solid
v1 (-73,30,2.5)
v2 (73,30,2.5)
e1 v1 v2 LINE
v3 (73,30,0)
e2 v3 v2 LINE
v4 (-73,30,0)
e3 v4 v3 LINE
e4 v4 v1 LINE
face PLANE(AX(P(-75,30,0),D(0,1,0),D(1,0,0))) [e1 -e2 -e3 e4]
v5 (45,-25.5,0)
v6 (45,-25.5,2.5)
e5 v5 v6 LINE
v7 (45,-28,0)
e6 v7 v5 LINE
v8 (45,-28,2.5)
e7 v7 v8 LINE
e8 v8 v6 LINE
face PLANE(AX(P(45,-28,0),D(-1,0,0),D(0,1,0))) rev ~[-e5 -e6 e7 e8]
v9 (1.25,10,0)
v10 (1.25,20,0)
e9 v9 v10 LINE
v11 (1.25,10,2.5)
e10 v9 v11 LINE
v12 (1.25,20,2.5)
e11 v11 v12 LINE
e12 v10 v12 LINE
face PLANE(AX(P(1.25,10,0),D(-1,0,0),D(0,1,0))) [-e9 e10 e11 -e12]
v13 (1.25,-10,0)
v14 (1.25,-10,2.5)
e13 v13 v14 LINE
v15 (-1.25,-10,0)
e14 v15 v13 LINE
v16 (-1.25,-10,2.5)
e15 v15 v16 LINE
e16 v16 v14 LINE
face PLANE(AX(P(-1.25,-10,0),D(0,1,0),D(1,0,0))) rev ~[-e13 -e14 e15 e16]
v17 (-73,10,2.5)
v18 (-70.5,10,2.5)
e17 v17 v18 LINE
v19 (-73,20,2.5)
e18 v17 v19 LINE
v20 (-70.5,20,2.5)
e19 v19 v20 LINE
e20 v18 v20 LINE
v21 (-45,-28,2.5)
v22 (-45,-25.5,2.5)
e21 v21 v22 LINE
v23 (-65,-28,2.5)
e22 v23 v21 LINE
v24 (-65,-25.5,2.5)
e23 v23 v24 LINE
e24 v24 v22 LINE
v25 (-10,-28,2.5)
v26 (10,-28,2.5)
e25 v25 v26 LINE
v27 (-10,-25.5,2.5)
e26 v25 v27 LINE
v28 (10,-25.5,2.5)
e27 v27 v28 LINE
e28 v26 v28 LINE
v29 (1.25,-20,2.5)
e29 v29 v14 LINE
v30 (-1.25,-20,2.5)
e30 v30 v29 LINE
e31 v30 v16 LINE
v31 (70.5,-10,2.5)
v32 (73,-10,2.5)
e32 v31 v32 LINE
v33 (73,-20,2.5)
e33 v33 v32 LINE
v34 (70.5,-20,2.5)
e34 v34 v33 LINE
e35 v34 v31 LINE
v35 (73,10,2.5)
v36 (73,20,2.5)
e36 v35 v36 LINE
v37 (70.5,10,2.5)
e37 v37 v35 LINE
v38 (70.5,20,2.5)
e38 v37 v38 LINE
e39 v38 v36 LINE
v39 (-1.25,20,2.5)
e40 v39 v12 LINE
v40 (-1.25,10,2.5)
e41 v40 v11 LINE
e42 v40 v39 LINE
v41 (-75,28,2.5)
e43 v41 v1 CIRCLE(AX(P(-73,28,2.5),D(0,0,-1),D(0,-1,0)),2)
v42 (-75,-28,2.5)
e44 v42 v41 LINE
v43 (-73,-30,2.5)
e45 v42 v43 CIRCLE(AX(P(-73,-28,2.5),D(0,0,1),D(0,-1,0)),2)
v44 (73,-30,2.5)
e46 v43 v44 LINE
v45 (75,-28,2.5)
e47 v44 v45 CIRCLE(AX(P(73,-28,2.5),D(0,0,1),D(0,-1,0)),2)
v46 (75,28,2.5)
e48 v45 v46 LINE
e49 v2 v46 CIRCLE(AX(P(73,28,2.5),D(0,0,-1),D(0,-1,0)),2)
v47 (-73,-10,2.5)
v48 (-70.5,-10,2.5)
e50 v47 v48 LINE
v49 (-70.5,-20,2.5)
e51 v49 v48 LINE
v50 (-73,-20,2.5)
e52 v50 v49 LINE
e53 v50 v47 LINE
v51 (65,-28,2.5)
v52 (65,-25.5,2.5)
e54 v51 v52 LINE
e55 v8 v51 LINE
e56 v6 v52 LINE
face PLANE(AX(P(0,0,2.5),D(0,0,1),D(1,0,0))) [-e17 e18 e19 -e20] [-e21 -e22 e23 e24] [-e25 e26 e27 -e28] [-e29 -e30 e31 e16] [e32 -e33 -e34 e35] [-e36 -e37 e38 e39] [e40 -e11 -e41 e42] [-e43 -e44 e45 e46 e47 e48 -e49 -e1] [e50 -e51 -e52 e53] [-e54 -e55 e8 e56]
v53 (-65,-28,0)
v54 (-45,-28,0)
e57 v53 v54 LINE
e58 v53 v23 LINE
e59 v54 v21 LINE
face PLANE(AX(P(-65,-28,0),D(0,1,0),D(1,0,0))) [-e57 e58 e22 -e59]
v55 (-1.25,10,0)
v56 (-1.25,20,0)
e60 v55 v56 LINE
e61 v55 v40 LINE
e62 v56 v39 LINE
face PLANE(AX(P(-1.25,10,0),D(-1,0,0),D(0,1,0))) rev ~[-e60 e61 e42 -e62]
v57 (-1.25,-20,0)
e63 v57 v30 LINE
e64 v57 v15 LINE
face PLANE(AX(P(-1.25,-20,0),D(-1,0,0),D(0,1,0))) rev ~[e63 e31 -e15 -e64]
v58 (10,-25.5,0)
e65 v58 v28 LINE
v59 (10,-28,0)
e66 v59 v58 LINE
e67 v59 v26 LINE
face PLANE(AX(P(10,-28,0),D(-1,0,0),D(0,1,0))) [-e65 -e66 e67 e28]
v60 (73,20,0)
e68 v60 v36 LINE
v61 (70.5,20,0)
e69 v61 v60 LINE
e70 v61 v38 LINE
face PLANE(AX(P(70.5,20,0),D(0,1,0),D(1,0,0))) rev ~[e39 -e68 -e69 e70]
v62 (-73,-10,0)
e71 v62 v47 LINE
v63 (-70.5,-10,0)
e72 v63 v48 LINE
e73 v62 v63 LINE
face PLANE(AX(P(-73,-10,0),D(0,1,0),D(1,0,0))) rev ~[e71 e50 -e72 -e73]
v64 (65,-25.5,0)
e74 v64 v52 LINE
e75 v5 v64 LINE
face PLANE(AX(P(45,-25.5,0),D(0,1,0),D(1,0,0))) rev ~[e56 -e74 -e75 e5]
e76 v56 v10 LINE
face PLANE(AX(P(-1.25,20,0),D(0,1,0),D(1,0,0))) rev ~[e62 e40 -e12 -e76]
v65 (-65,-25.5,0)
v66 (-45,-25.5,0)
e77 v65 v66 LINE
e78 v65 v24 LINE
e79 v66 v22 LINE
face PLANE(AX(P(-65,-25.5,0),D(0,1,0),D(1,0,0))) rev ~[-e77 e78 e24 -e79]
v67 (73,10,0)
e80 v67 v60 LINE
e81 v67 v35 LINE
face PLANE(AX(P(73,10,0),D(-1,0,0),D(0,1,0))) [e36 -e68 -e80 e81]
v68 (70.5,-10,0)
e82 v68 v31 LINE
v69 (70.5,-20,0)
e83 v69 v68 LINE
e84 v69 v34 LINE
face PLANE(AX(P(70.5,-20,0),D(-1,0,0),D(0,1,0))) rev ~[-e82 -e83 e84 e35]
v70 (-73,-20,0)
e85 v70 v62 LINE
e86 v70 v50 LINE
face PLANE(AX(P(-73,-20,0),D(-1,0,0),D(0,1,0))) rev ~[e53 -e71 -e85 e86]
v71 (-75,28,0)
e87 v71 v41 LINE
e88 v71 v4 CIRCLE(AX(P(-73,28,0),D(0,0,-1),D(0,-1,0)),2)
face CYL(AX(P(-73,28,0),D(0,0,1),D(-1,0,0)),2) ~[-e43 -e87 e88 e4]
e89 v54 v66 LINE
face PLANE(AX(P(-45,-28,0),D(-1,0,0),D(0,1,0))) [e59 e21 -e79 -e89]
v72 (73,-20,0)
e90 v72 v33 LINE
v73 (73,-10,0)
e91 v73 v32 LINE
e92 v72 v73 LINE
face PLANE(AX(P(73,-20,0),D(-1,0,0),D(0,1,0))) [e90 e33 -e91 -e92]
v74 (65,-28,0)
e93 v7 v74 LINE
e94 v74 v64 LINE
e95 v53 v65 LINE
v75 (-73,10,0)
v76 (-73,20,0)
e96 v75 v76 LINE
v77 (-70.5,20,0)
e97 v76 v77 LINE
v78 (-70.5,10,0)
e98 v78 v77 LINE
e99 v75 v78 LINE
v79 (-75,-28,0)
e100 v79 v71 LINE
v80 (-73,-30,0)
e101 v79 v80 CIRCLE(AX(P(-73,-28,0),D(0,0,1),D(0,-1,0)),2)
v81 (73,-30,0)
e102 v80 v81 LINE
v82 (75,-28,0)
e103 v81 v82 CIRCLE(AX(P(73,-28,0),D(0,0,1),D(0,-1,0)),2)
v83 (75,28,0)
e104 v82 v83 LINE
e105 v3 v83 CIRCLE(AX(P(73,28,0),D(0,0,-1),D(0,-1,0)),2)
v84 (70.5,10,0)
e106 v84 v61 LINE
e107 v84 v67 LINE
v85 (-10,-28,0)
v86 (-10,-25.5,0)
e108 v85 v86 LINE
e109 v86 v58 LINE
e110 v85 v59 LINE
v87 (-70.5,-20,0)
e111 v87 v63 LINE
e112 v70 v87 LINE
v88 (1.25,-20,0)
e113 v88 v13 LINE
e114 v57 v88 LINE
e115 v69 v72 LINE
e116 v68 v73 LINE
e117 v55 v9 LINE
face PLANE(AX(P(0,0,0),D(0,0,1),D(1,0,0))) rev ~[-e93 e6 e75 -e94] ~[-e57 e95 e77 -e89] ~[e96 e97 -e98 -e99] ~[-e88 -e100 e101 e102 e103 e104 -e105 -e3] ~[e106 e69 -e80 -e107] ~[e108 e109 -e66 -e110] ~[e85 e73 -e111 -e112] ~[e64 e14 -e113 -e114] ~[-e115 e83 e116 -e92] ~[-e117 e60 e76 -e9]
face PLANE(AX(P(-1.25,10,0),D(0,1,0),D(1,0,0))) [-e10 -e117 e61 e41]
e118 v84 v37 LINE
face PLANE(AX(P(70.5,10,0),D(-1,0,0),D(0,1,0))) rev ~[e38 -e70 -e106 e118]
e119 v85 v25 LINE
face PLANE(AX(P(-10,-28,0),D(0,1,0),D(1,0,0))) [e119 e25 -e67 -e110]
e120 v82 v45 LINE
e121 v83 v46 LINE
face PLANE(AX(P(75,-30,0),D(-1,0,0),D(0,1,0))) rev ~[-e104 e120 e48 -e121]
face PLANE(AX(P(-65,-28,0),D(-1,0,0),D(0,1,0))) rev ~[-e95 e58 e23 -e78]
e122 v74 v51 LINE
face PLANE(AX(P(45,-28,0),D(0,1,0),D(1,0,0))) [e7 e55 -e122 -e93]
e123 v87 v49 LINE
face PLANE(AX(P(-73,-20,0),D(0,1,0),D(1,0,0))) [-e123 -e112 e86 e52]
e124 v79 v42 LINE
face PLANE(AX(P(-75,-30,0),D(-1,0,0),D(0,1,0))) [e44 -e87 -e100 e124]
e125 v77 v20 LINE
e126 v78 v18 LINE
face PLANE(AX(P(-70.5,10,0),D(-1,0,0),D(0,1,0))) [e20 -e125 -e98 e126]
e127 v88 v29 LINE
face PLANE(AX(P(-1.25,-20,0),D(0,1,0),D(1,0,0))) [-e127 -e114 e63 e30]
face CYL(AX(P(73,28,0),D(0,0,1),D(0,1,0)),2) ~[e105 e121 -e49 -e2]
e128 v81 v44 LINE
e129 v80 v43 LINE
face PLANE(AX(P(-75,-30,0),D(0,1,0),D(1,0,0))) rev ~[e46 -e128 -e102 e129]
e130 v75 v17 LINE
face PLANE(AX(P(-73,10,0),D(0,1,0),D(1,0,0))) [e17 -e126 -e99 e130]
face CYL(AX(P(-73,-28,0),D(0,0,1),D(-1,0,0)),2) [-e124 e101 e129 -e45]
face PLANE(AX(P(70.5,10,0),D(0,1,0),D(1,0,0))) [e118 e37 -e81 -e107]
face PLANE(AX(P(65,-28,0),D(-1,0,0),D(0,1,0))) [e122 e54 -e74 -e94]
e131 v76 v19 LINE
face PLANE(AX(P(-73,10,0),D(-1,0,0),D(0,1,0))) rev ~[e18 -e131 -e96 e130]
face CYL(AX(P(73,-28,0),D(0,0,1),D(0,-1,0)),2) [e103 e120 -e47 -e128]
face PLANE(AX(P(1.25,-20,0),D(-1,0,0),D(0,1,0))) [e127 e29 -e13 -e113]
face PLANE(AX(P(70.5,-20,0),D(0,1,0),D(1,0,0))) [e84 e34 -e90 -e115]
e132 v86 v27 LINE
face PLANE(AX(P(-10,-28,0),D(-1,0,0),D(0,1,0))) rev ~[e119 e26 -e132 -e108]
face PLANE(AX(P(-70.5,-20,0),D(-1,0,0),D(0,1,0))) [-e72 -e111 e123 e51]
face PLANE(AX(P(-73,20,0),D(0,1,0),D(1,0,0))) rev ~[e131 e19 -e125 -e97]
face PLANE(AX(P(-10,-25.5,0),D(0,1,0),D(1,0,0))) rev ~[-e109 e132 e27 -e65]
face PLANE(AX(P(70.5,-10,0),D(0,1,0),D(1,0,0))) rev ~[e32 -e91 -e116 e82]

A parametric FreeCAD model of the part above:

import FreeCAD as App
import Part
import Sketcher

V = App.Vector


def edges_at(feature, points):
    """Names of the edges that pass closest to the given points."""
    edges = feature.Shape.Edges
    near = lambda p: min(range(len(edges)), key=lambda i: edges[i].distToShape(Part.Vertex(*p))[0])
    return sorted({f"Edge{near(p) + 1}" for p in points})

doc = App.newDocument("Part")
body = doc.addObject("PartDesign::Body", "Body")

# Sketch on XY plane
sketch1 = body.newObject("Sketcher::SketchObject", "Sketch")
sketch1.AttachmentSupport = (doc.getObject("XY_Plane"), [""])
sketch1.MapMode = "FlatFace"
sketch1.addGeometry(Part.LineSegment(V(-75, 30, 0), V(-75, -30, 0)), False)
sketch1.addGeometry(Part.LineSegment(V(-75, -30, 0), V(75, -30, 0)), False)
sketch1.addGeometry(Part.LineSegment(V(75, -30, 0), V(75, 30, 0)), False)
sketch1.addGeometry(Part.LineSegment(V(75, 30, 0), V(-75, 30, 0)), False)
sketch1.addGeometry(Part.LineSegment(V(-45, -28, 0), V(-65, -28, 0)), False)
sketch1.addGeometry(Part.LineSegment(V(-65, -28, 0), V(-65, -25.5, 0)), False)
sketch1.addGeometry(Part.LineSegment(V(-65, -25.5, 0), V(-45, -25.5, 0)), False)
sketch1.addGeometry(Part.LineSegment(V(-45, -25.5, 0), V(-45, -28, 0)), False)
sketch1.addGeometry(Part.LineSegment(V(-70.5, -20, 0), V(-73, -20, 0)), False)
sketch1.addGeometry(Part.LineSegment(V(-73, -20, 0), V(-73, -10, 0)), False)
sketch1.addGeometry(Part.LineSegment(V(-73, -10, 0), V(-70.5, -10, 0)), False)
sketch1.addGeometry(Part.LineSegment(V(-70.5, -10, 0), V(-70.5, -20, 0)), False)
sketch1.addGeometry(Part.LineSegment(V(10, -28, 0), V(-10, -28, 0)), False)
sketch1.addGeometry(Part.LineSegment(V(-10, -28, 0), V(-10, -25.5, 0)), False)
sketch1.addGeometry(Part.LineSegment(V(-10, -25.5, 0), V(10, -25.5, 0)), False)
sketch1.addGeometry(Part.LineSegment(V(10, -25.5, 0), V(10, -28, 0)), False)
sketch1.addGeometry(Part.LineSegment(V(65, -28, 0), V(45, -28, 0)), False)
sketch1.addGeometry(Part.LineSegment(V(45, -28, 0), V(45, -25.5, 0)), False)
sketch1.addGeometry(Part.LineSegment(V(45, -25.5, 0), V(65, -25.5, 0)), False)
sketch1.addGeometry(Part.LineSegment(V(65, -25.5, 0), V(65, -28, 0)), False)
sketch1.addGeometry(Part.LineSegment(V(1.2, -20, 0), V(-1.2, -20, 0)), False)
sketch1.addGeometry(Part.LineSegment(V(-1.2, -20, 0), V(-1.2, -10, 0)), False)
sketch1.addGeometry(Part.LineSegment(V(-1.2, -10, 0), V(1.2, -10, 0)), False)
sketch1.addGeometry(Part.LineSegment(V(1.2, -10, 0), V(1.2, -20, 0)), False)
sketch1.addGeometry(Part.LineSegment(V(73, -20, 0), V(70.5, -20, 0)), False)
sketch1.addGeometry(Part.LineSegment(V(70.5, -20, 0), V(70.5, -10, 0)), False)
sketch1.addGeometry(Part.LineSegment(V(70.5, -10, 0), V(73, -10, 0)), False)
sketch1.addGeometry(Part.LineSegment(V(73, -10, 0), V(73, -20, 0)), False)
sketch1.addGeometry(Part.LineSegment(V(-70.5, 10, 0), V(-73, 10, 0)), False)
sketch1.addGeometry(Part.LineSegment(V(-73, 10, 0), V(-73, 20, 0)), False)
sketch1.addGeometry(Part.LineSegment(V(-73, 20, 0), V(-70.5, 20, 0)), False)
sketch1.addGeometry(Part.LineSegment(V(-70.5, 20, 0), V(-70.5, 10, 0)), False)
sketch1.addGeometry(Part.LineSegment(V(1.2, 10, 0), V(-1.2, 10, 0)), False)
sketch1.addGeometry(Part.LineSegment(V(-1.2, 10, 0), V(-1.2, 20, 0)), False)
sketch1.addGeometry(Part.LineSegment(V(-1.2, 20, 0), V(1.2, 20, 0)), False)
sketch1.addGeometry(Part.LineSegment(V(1.2, 20, 0), V(1.2, 10, 0)), False)
sketch1.addGeometry(Part.LineSegment(V(73, 10, 0), V(70.5, 10, 0)), False)
sketch1.addGeometry(Part.LineSegment(V(70.5, 10, 0), V(70.5, 20, 0)), False)
sketch1.addGeometry(Part.LineSegment(V(70.5, 20, 0), V(73, 20, 0)), False)
sketch1.addGeometry(Part.LineSegment(V(73, 20, 0), V(73, 10, 0)), False)
sketch1.addConstraint(Sketcher.Constraint("Coincident", 0, 2, 1, 1))
sketch1.addConstraint(Sketcher.Constraint("Coincident", 1, 2, 2, 1))
sketch1.addConstraint(Sketcher.Constraint("Coincident", 2, 2, 3, 1))
sketch1.addConstraint(Sketcher.Constraint("Coincident", 3, 2, 0, 1))
sketch1.addConstraint(Sketcher.Constraint("Coincident", 4, 2, 5, 1))
sketch1.addConstraint(Sketcher.Constraint("Coincident", 5, 2, 6, 1))
sketch1.addConstraint(Sketcher.Constraint("Coincident", 6, 2, 7, 1))
sketch1.addConstraint(Sketcher.Constraint("Coincident", 7, 2, 4, 1))
sketch1.addConstraint(Sketcher.Constraint("Coincident", 8, 2, 9, 1))
sketch1.addConstraint(Sketcher.Constraint("Coincident", 9, 2, 10, 1))
sketch1.addConstraint(Sketcher.Constraint("Coincident", 10, 2, 11, 1))
sketch1.addConstraint(Sketcher.Constraint("Coincident", 11, 2, 8, 1))
sketch1.addConstraint(Sketcher.Constraint("Coincident", 12, 2, 13, 1))
sketch1.addConstraint(Sketcher.Constraint("Coincident", 13, 2, 14, 1))
sketch1.addConstraint(Sketcher.Constraint("Coincident", 14, 2, 15, 1))
sketch1.addConstraint(Sketcher.Constraint("Coincident", 15, 2, 12, 1))
sketch1.addConstraint(Sketcher.Constraint("Coincident", 16, 2, 17, 1))
sketch1.addConstraint(Sketcher.Constraint("Coincident", 17, 2, 18, 1))
sketch1.addConstraint(Sketcher.Constraint("Coincident", 18, 2, 19, 1))
sketch1.addConstraint(Sketcher.Constraint("Coincident", 19, 2, 16, 1))
sketch1.addConstraint(Sketcher.Constraint("Coincident", 20, 2, 21, 1))
sketch1.addConstraint(Sketcher.Constraint("Coincident", 21, 2, 22, 1))
sketch1.addConstraint(Sketcher.Constraint("Coincident", 22, 2, 23, 1))
sketch1.addConstraint(Sketcher.Constraint("Coincident", 23, 2, 20, 1))
sketch1.addConstraint(Sketcher.Constraint("Coincident", 24, 2, 25, 1))
sketch1.addConstraint(Sketcher.Constraint("Coincident", 25, 2, 26, 1))
sketch1.addConstraint(Sketcher.Constraint("Coincident", 26, 2, 27, 1))
sketch1.addConstraint(Sketcher.Constraint("Coincident", 27, 2, 24, 1))
sketch1.addConstraint(Sketcher.Constraint("Coincident", 28, 2, 29, 1))
sketch1.addConstraint(Sketcher.Constraint("Coincident", 29, 2, 30, 1))
sketch1.addConstraint(Sketcher.Constraint("Coincident", 30, 2, 31, 1))
sketch1.addConstraint(Sketcher.Constraint("Coincident", 31, 2, 28, 1))
sketch1.addConstraint(Sketcher.Constraint("Coincident", 32, 2, 33, 1))
sketch1.addConstraint(Sketcher.Constraint("Coincident", 33, 2, 34, 1))
sketch1.addConstraint(Sketcher.Constraint("Coincident", 34, 2, 35, 1))
sketch1.addConstraint(Sketcher.Constraint("Coincident", 35, 2, 32, 1))
sketch1.addConstraint(Sketcher.Constraint("Coincident", 36, 2, 37, 1))
sketch1.addConstraint(Sketcher.Constraint("Coincident", 37, 2, 38, 1))
sketch1.addConstraint(Sketcher.Constraint("Coincident", 38, 2, 39, 1))
sketch1.addConstraint(Sketcher.Constraint("Coincident", 39, 2, 36, 1))
sketch1.addConstraint(Sketcher.Constraint("Vertical", 0))
sketch1.addConstraint(Sketcher.Constraint("Horizontal", 1))
sketch1.addConstraint(Sketcher.Constraint("Vertical", 2))
sketch1.addConstraint(Sketcher.Constraint("Horizontal", 3))
sketch1.addConstraint(Sketcher.Constraint("Horizontal", 4))
sketch1.addConstraint(Sketcher.Constraint("Vertical", 5))
sketch1.addConstraint(Sketcher.Constraint("Horizontal", 6))
sketch1.addConstraint(Sketcher.Constraint("Vertical", 7))
sketch1.addConstraint(Sketcher.Constraint("Horizontal", 8))
sketch1.addConstraint(Sketcher.Constraint("Vertical", 9))
sketch1.addConstraint(Sketcher.Constraint("Horizontal", 10))
sketch1.addConstraint(Sketcher.Constraint("Vertical", 11))
sketch1.addConstraint(Sketcher.Constraint("Horizontal", 12))
sketch1.addConstraint(Sketcher.Constraint("Vertical", 13))
sketch1.addConstraint(Sketcher.Constraint("Horizontal", 14))
sketch1.addConstraint(Sketcher.Constraint("Vertical", 15))
sketch1.addConstraint(Sketcher.Constraint("Horizontal", 16))
sketch1.addConstraint(Sketcher.Constraint("Vertical", 17))
sketch1.addConstraint(Sketcher.Constraint("Horizontal", 18))
sketch1.addConstraint(Sketcher.Constraint("Vertical", 19))
sketch1.addConstraint(Sketcher.Constraint("Horizontal", 20))
sketch1.addConstraint(Sketcher.Constraint("Vertical", 21))
sketch1.addConstraint(Sketcher.Constraint("Horizontal", 22))
sketch1.addConstraint(Sketcher.Constraint("Vertical", 23))
sketch1.addConstraint(Sketcher.Constraint("Horizontal", 24))
sketch1.addConstraint(Sketcher.Constraint("Vertical", 25))
sketch1.addConstraint(Sketcher.Constraint("Horizontal", 26))
sketch1.addConstraint(Sketcher.Constraint("Vertical", 27))
sketch1.addConstraint(Sketcher.Constraint("Horizontal", 28))
sketch1.addConstraint(Sketcher.Constraint("Vertical", 29))
sketch1.addConstraint(Sketcher.Constraint("Horizontal", 30))
sketch1.addConstraint(Sketcher.Constraint("Vertical", 31))
sketch1.addConstraint(Sketcher.Constraint("Horizontal", 32))
sketch1.addConstraint(Sketcher.Constraint("Vertical", 33))
sketch1.addConstraint(Sketcher.Constraint("Horizontal", 34))
sketch1.addConstraint(Sketcher.Constraint("Vertical", 35))
sketch1.addConstraint(Sketcher.Constraint("Horizontal", 36))
sketch1.addConstraint(Sketcher.Constraint("Vertical", 37))
sketch1.addConstraint(Sketcher.Constraint("Horizontal", 38))
sketch1.addConstraint(Sketcher.Constraint("Vertical", 39))
sketch1.addConstraint(Sketcher.Constraint("Symmetric", 0, 2, 2, 2, -1, 1))
sketch1.addConstraint(Sketcher.Constraint("Symmetric", 26, 2, 28, 2, -1, 1))
sketch1.addConstraint(Sketcher.Constraint("Symmetric", 24, 2, 30, 2, -1, 1))
sketch1.addConstraint(Sketcher.Constraint("Symmetric", 22, 2, 32, 2, -1, 1))
sketch1.addConstraint(Sketcher.Constraint("Symmetric", 20, 2, 34, 2, -1, 1))
sketch1.addConstraint(Sketcher.Constraint("Symmetric", 10, 2, 36, 2, -1, 1))
sketch1.addConstraint(Sketcher.Constraint("Symmetric", 8, 2, 38, 2, -1, 1))
sketch1.addConstraint(Sketcher.Constraint("Symmetric", 7, 2, 16, 2, -2))
sketch1.addConstraint(Sketcher.Constraint("Symmetric", 5, 2, 18, 2, -2))
sketch1.addConstraint(Sketcher.Constraint("Symmetric", 11, 2, 24, 2, -2))
sketch1.addConstraint(Sketcher.Constraint("Symmetric", 9, 2, 26, 2, -2))
sketch1.addConstraint(Sketcher.Constraint("Horizontal", 7, 2, 12, 2))
sketch1.addConstraint(Sketcher.Constraint("Horizontal", 6, 2, 13, 2))
sketch1.addConstraint(Sketcher.Constraint("Horizontal", 11, 2, 20, 2))
sketch1.addConstraint(Sketcher.Constraint("Horizontal", 10, 2, 21, 2))
sketch1.addConstraint(Sketcher.Constraint("Vertical", 21, 2, 32, 2))
sketch1.addConstraint(Sketcher.Constraint("Equal", 6, 12))
sketch1.addConstraint(Sketcher.Constraint("Equal", 10, 20))
sketch1.addConstraint(Sketcher.Constraint("Equal", 38, 5))
sketch1.addConstraint(Sketcher.Constraint("DistanceX", 1, 1, 1, 2, 150.0))
sketch1.addConstraint(Sketcher.Constraint("DistanceX", 4, 2, 4, 1, 20.0))
sketch1.addConstraint(Sketcher.Constraint("DistanceY", 0, 2, 0, 1, 60.0))
sketch1.addConstraint(Sketcher.Constraint("DistanceY", 9, 1, 9, 2, 10.0))
sketch1.addConstraint(Sketcher.Constraint("DistanceX", 8, 2, 8, 1, 2.5))
sketch1.addConstraint(Sketcher.Constraint("DistanceX", 4, 2, -1, 1, 65.0))
sketch1.addConstraint(Sketcher.Constraint("DistanceY", 4, 2, -1, 1, 28.0))
sketch1.addConstraint(Sketcher.Constraint("DistanceX", 8, 2, -1, 1, 73.0))
sketch1.addConstraint(Sketcher.Constraint("DistanceY", 8, 2, -1, 1, 20.0))
sketch1.addConstraint(Sketcher.Constraint("DistanceX", 12, 2, -1, 1, 10.0))
pad1 = body.newObject("PartDesign::Pad", "Pad")
pad1.Profile = sketch1
pad1.Length = 2.5
doc.recompute()

fillet = body.newObject("PartDesign::Fillet", "Fillet")
fillet.Base = (pad1, edges_at(pad1, [
    (75, -30, 1.25),
    (-75, -30, 1.25),
    (-75, 30, 1.25),
    (75, 30, 1.25),
]))
fillet.Radius = 2

doc.recompute()
